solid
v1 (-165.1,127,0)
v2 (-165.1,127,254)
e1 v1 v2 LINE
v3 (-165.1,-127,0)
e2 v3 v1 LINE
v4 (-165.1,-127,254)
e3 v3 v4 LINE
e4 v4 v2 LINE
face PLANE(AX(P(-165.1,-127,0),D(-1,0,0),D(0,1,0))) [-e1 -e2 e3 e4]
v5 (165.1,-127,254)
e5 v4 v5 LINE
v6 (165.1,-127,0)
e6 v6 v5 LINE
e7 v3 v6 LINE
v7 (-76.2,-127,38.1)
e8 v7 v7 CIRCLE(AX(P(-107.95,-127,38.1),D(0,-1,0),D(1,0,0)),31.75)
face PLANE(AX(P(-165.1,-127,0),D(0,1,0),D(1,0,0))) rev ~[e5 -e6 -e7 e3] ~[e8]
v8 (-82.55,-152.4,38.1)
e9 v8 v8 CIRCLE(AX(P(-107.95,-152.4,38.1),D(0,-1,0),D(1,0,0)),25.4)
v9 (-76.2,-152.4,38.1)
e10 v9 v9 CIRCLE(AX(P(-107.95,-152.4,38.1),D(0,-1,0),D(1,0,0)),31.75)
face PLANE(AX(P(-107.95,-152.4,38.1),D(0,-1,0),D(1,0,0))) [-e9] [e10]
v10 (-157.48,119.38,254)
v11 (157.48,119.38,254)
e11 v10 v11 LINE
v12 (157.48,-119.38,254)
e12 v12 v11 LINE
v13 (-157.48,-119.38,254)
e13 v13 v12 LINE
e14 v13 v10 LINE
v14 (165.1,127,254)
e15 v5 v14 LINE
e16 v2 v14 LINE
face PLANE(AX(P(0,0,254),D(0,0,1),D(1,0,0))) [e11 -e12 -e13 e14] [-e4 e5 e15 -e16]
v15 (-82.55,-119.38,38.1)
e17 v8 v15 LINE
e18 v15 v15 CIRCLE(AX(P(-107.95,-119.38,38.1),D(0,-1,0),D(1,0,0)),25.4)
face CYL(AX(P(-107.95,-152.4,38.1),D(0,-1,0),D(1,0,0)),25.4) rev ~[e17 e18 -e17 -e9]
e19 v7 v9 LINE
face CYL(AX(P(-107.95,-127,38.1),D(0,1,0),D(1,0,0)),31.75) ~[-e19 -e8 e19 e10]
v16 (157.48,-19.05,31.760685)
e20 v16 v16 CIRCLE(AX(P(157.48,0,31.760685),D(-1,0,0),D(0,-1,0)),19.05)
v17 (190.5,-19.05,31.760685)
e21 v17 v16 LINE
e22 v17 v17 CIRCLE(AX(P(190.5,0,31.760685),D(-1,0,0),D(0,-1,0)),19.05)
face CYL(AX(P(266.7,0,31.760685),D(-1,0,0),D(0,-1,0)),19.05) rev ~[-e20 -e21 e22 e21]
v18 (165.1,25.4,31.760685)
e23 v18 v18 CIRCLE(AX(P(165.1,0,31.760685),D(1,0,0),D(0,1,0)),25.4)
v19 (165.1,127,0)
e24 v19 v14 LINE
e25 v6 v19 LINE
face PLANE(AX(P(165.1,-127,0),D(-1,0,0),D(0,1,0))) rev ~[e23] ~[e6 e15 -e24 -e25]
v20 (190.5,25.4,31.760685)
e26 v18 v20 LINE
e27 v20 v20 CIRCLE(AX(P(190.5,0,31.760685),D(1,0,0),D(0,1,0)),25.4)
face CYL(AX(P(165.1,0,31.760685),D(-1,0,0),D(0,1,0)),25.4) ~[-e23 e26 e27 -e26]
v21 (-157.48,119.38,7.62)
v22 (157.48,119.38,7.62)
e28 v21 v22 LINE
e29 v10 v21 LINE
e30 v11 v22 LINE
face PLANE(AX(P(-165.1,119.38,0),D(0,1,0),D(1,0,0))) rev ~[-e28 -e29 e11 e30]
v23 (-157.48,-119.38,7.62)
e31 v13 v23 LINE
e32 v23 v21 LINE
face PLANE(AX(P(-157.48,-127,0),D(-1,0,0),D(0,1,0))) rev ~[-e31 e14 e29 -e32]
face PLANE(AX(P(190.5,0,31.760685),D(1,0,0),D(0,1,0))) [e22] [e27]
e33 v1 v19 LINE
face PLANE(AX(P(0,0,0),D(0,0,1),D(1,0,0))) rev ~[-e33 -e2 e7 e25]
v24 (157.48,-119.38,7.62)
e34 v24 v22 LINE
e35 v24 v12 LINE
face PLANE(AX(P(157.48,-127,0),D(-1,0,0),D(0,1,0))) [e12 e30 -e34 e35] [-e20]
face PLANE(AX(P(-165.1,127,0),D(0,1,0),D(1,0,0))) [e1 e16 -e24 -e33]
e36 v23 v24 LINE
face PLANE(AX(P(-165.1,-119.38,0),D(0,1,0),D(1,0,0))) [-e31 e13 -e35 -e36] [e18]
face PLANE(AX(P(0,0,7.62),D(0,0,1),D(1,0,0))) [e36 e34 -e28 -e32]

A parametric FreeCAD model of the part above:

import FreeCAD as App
import Part
import Sketcher

V = App.Vector
Q = App.Units.Quantity


def faces_at(feature, points):
    """Names of the faces that lie closest to the given points."""
    faces = feature.Shape.Faces
    near = lambda p: min(range(len(faces)), key=lambda i: faces[i].distToShape(Part.Vertex(*p))[0])
    return sorted({f"Face{near(p) + 1}" for p in points})

doc = App.newDocument("Part")
body = doc.addObject("PartDesign::Body", "Body")

# Sketch on XY plane
sketch1 = body.newObject("Sketcher::SketchObject", "Sketch")
sketch1.AttachmentSupport = (doc.getObject("XY_Plane"), [""])
sketch1.MapMode = "FlatFace"
sketch1.addGeometry(Part.LineSegment(V(-165.1, 127, 0), V(-165.1, -127, 0)), False)
sketch1.addGeometry(Part.LineSegment(V(-165.1, -127, 0), V(165.1, -127, 0)), False)
sketch1.addGeometry(Part.LineSegment(V(165.1, -127, 0), V(165.1, 127, 0)), False)
sketch1.addGeometry(Part.LineSegment(V(165.1, 127, 0), V(-165.1, 127, 0)), False)
sketch1.addConstraint(Sketcher.Constraint("Coincident", 0, 2, 1, 1))
sketch1.addConstraint(Sketcher.Constraint("Coincident", 1, 2, 2, 1))
sketch1.addConstraint(Sketcher.Constraint("Coincident", 2, 2, 3, 1))
sketch1.addConstraint(Sketcher.Constraint("Coincident", 3, 2, 0, 1))
sketch1.addConstraint(Sketcher.Constraint("Vertical", 0))
sketch1.addConstraint(Sketcher.Constraint("Horizontal", 1))
sketch1.addConstraint(Sketcher.Constraint("Vertical", 2))
sketch1.addConstraint(Sketcher.Constraint("Horizontal", 3))
sketch1.addConstraint(Sketcher.Constraint("Symmetric", 0, 2, 2, 2, -1, 1))
sketch1.addConstraint(Sketcher.Constraint("DistanceX", 1, 1, 1, 2, Q("13 in")))
sketch1.addConstraint(Sketcher.Constraint("DistanceY", 0, 2, 0, 1, Q("10 in")))
pad1 = body.newObject("PartDesign::Pad", "Pad")
pad1.Profile = sketch1
pad1.Length = Q("10 in")
doc.recompute()

thickness = body.newObject("PartDesign::Thickness", "Thickness")
thickness.Base = (pad1, faces_at(pad1, [(0, 0, 254)]))
thickness.Value = Q("0.3 in")
thickness.Reversed = True
thickness.Join = "Arc"

# Sketch on YZ plane
sketch2 = body.newObject("Sketcher::SketchObject", "Sketch001")
sketch2.AttachmentSupport = (doc.getObject("YZ_Plane"), [""])
sketch2.MapMode = "FlatFace"
sketch2.AttachmentOffset = App.Placement(V(0, 0, 6.5 * 25.4), App.Rotation())
sketch2.addGeometry(Part.Circle(V(0, 31.760685, 0), V(0, 0, 1), 25.4), False)
sketch2.addConstraint(Sketcher.Constraint("PointOnObject", 0, 3, -2))
sketch2.addConstraint(Sketcher.Constraint("Diameter", 0, Q("2 in")))
sketch2.addConstraint(Sketcher.Constraint("DistanceY", -1, 1, 0, 3, 31.760685))
pad2 = body.newObject("PartDesign::Pad", "Pad001")
pad2.Profile = sketch2
pad2.Length = Q("1 in")

# Sketch on YZ plane
sketch3 = body.newObject("Sketcher::SketchObject", "Sketch002")
sketch3.AttachmentSupport = (doc.getObject("YZ_Plane"), [""])
sketch3.MapMode = "FlatFace"
sketch3.AttachmentOffset = App.Placement(V(0, 0, 7.5 * 25.4), App.Rotation())
sketch3.addGeometry(Part.Circle(V(0, 31.760685, 0), V(0, 0, 1), 19.05), False)
sketch3.addConstraint(Sketcher.Constraint("PointOnObject", 0, 3, -2))
sketch3.addConstraint(Sketcher.Constraint("Diameter", 0, Q("1.5 in")))
sketch3.addConstraint(Sketcher.Constraint("DistanceY", -1, 1, 0, 3, 31.760685))
doc.recompute()
hole = body.newObject("PartDesign::Hole", "Hole")
hole.Profile = sketch3
hole.ThreadType = "None"
hole.Diameter = Q("1.5 in")
hole.DepthType = "Dimension"
hole.Depth = Q("3 in")
hole.DrillPoint = "Flat"

# Sketch on XZ plane
sketch4 = body.newObject("Sketcher::SketchObject", "Sketch003")
sketch4.AttachmentSupport = (doc.getObject("XZ_Plane"), [""])
sketch4.MapMode = "FlatFace"
sketch4.AttachmentOffset = App.Placement(V(0, 0, 5 * 25.4), App.Rotation())
sketch4.addGeometry(Part.Circle(V(-107.95, 38.1, 0), V(0, 0, 1), 31.75), False)
sketch4.addConstraint(Sketcher.Constraint("Diameter", 0, Q("2.5 in")))
sketch4.addConstraint(Sketcher.Constraint("DistanceY", -1, 1, 0, 3, Q("1.5 in")))
sketch4.addConstraint(Sketcher.Constraint("DistanceX", 0, 3, -1, 1, Q("4.25 in")))
pad3 = body.newObject("PartDesign::Pad", "Pad002")
pad3.Profile = sketch4
pad3.Length = Q("1 in")

# Sketch on XZ plane
sketch5 = body.newObject("Sketcher::SketchObject", "Sketch004")
sketch5.AttachmentSupport = (doc.getObject("XZ_Plane"), [""])
sketch5.MapMode = "FlatFace"
sketch5.AttachmentOffset = App.Placement(V(0, 0, 6 * 25.4), App.Rotation())
sketch5.addGeometry(Part.Circle(V(-107.95, 38.1, 0), V(0, 0, 1), 25.4), False)
sketch5.addConstraint(Sketcher.Constraint("Diameter", 0, Q("2 in")))
sketch5.addConstraint(Sketcher.Constraint("DistanceY", -1, 1, 0, 3, Q("1.5 in")))
sketch5.addConstraint(Sketcher.Constraint("DistanceX", 0, 3, -1, 1, Q("4.25 in")))
pocket1 = body.newObject("PartDesign::Pocket", "Pocket")
pocket1.Profile = sketch5
pocket1.Length = Q("3 in")

doc.recompute()
